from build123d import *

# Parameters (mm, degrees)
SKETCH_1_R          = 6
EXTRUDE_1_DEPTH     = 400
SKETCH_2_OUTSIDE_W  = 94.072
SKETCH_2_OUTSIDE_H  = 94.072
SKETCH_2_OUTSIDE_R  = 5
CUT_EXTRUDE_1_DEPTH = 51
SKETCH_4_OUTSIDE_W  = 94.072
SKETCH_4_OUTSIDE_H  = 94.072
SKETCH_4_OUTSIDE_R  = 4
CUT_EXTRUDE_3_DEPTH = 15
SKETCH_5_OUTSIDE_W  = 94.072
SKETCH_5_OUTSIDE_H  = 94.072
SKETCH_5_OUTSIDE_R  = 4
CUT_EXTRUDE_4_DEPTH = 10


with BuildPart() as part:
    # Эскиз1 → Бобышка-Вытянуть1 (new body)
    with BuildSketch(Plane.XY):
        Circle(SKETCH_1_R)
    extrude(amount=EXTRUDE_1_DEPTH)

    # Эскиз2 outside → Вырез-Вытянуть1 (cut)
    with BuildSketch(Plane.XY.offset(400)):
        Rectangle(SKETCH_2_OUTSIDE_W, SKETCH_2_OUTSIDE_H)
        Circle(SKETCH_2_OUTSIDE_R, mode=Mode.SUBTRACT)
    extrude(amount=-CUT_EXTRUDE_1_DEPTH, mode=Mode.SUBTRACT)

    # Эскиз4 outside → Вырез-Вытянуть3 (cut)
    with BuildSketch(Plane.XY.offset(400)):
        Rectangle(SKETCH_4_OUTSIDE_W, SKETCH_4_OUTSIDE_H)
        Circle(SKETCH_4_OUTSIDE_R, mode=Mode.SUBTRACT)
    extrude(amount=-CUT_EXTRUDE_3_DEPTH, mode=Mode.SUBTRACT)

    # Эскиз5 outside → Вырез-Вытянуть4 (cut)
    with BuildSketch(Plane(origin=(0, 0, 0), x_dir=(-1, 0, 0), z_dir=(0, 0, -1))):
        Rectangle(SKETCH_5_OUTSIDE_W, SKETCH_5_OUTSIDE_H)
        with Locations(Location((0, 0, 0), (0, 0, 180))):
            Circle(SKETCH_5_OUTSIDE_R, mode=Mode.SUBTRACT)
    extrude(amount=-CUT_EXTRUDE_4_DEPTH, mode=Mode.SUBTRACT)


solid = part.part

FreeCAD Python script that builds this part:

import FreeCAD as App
import Part
import Sketcher
from FreeCAD import Vector

doc = App.newDocument("Part")
body = doc.addObject("PartDesign::Body", "Body")

sketch1 = body.newObject("Sketcher::SketchObject", "Sketch")
sketch1.AttachmentSupport = (doc.getObject("XY_Plane"), [""])
sketch1.MapMode = "FlatFace"
sketch1.addGeometry(Part.Circle(Vector(0, 0, 0), Vector(0, 0, 1), 6), False)
sketch1.addConstraint(Sketcher.Constraint("Coincident", 0, 3, -1, 1))
sketch1.addConstraint(Sketcher.Constraint("Diameter", 0, 12.0))
pad1 = body.newObject("PartDesign::Pad", "Pad")
pad1.Profile = sketch1
pad1.Length = 400

sketch2 = body.newObject("Sketcher::SketchObject", "Sketch001")
sketch2.AttachmentSupport = (doc.getObject("XY_Plane"), [""])
sketch2.MapMode = "FlatFace"
sketch2.AttachmentOffset = App.Placement(Vector(0, 0, 400), App.Rotation())
sketch2.addGeometry(Part.LineSegment(Vector(-47.036, 47.036, 0), Vector(-47.036, -47.036, 0)), False)
sketch2.addGeometry(Part.LineSegment(Vector(-47.036, -47.036, 0), Vector(47.036, -47.036, 0)), False)
sketch2.addGeometry(Part.LineSegment(Vector(47.036, -47.036, 0), Vector(47.036, 47.036, 0)), False)
sketch2.addGeometry(Part.LineSegment(Vector(47.036, 47.036, 0), Vector(-47.036, 47.036, 0)), False)
sketch2.addGeometry(Part.Circle(Vector(0, 0, 0), Vector(0, 0, 1), 5), False)
sketch2.addConstraint(Sketcher.Constraint("Coincident", 0, 2, 1, 1))
sketch2.addConstraint(Sketcher.Constraint("Coincident", 1, 2, 2, 1))
sketch2.addConstraint(Sketcher.Constraint("Coincident", 2, 2, 3, 1))
sketch2.addConstraint(Sketcher.Constraint("Coincident", 3, 2, 0, 1))
sketch2.addConstraint(Sketcher.Constraint("Vertical", 0))
sketch2.addConstraint(Sketcher.Constraint("Horizontal", 1))
sketch2.addConstraint(Sketcher.Constraint("Vertical", 2))
sketch2.addConstraint(Sketcher.Constraint("Horizontal", 3))
sketch2.addConstraint(Sketcher.Constraint("Coincident", 4, 3, -1, 1))
sketch2.addConstraint(Sketcher.Constraint("Symmetric", 0, 2, 2, 2, -1, 1))
sketch2.addConstraint(Sketcher.Constraint("Equal", 3, 0))
sketch2.addConstraint(Sketcher.Constraint("Diameter", 4, 10.0))
sketch2.addConstraint(Sketcher.Constraint("DistanceX", 1, 1, 1, 2, 94.072))
pocket1 = body.newObject("PartDesign::Pocket", "Pocket")
pocket1.Profile = sketch2
pocket1.Length = 51

sketch3 = body.newObject("Sketcher::SketchObject", "Sketch002")
sketch3.AttachmentSupport = (doc.getObject("XY_Plane"), [""])
sketch3.MapMode = "FlatFace"
sketch3.AttachmentOffset = App.Placement(Vector(0, 0, 400), App.Rotation())
sketch3.addGeometry(Part.LineSegment(Vector(-47.036, 47.036, 0), Vector(-47.036, -47.036, 0)), False)
sketch3.addGeometry(Part.LineSegment(Vector(-47.036, -47.036, 0), Vector(47.036, -47.036, 0)), False)
sketch3.addGeometry(Part.LineSegment(Vector(47.036, -47.036, 0), Vector(47.036, 47.036, 0)), False)
sketch3.addGeometry(Part.LineSegment(Vector(47.036, 47.036, 0), Vector(-47.036, 47.036, 0)), False)
sketch3.addGeometry(Part.Circle(Vector(0, 0, 0), Vector(0, 0, 1), 4), False)
sketch3.addConstraint(Sketcher.Constraint("Coincident", 0, 2, 1, 1))
sketch3.addConstraint(Sketcher.Constraint("Coincident", 1, 2, 2, 1))
sketch3.addConstraint(Sketcher.Constraint("Coincident", 2, 2, 3, 1))
sketch3.addConstraint(Sketcher.Constraint("Coincident", 3, 2, 0, 1))
sketch3.addConstraint(Sketcher.Constraint("Vertical", 0))
sketch3.addConstraint(Sketcher.Constraint("Horizontal", 1))
sketch3.addConstraint(Sketcher.Constraint("Vertical", 2))
sketch3.addConstraint(Sketcher.Constraint("Horizontal", 3))
sketch3.addConstraint(Sketcher.Constraint("Coincident", 4, 3, -1, 1))
sketch3.addConstraint(Sketcher.Constraint("Symmetric", 0, 2, 2, 2, -1, 1))
sketch3.addConstraint(Sketcher.Constraint("Equal", 3, 0))
sketch3.addConstraint(Sketcher.Constraint("Diameter", 4, 8.0))
sketch3.addConstraint(Sketcher.Constraint("DistanceX", 1, 1, 1, 2, 94.072))
pocket2 = body.newObject("PartDesign::Pocket", "Pocket001")
pocket2.Profile = sketch3
pocket2.Length = 15

sketch4 = body.newObject("Sketcher::SketchObject", "Sketch003")
sketch4.AttachmentSupport = (doc.getObject("XY_Plane"), [""])
sketch4.MapMode = "FlatFace"
sketch4.addGeometry(Part.LineSegment(Vector(47.036, 47.036, 0), Vector(47.036, -47.036, 0)), False)
sketch4.addGeometry(Part.LineSegment(Vector(47.036, -47.036, 0), Vector(-47.036, -47.036, 0)), False)
sketch4.addGeometry(Part.LineSegment(Vector(-47.036, -47.036, 0), Vector(-47.036, 47.036, 0)), False)
sketch4.addGeometry(Part.LineSegment(Vector(-47.036, 47.036, 0), Vector(47.036, 47.036, 0)), False)
sketch4.addGeometry(Part.Circle(Vector(0, 0, 0), Vector(0, 0, 1), 4), False)
sketch4.addConstraint(Sketcher.Constraint("Coincident", 0, 2, 1, 1))
sketch4.addConstraint(Sketcher.Constraint("Coincident", 1, 2, 2, 1))
sketch4.addConstraint(Sketcher.Constraint("Coincident", 2, 2, 3, 1))
sketch4.addConstraint(Sketcher.Constraint("Coincident", 3, 2, 0, 1))
sketch4.addConstraint(Sketcher.Constraint("Vertical", 0))
sketch4.addConstraint(Sketcher.Constraint("Horizontal", 1))
sketch4.addConstraint(Sketcher.Constraint("Vertical", 2))
sketch4.addConstraint(Sketcher.Constraint("Horizontal", 3))
sketch4.addConstraint(Sketcher.Constraint("Coincident", 4, 3, -1, 1))
sketch4.addConstraint(Sketcher.Constraint("Symmetric", 0, 2, 2, 2, -1, 1))
sketch4.addConstraint(Sketcher.Constraint("Equal", 3, 0))
sketch4.addConstraint(Sketcher.Constraint("Diameter", 4, 8.0))
sketch4.addConstraint(Sketcher.Constraint("DistanceX", 1, 2, 1, 1, 94.072))
pocket3 = body.newObject("PartDesign::Pocket", "Pocket002")
pocket3.Profile = sketch4
pocket3.Length = 10
pocket3.Reversed = True

doc.recompute()
